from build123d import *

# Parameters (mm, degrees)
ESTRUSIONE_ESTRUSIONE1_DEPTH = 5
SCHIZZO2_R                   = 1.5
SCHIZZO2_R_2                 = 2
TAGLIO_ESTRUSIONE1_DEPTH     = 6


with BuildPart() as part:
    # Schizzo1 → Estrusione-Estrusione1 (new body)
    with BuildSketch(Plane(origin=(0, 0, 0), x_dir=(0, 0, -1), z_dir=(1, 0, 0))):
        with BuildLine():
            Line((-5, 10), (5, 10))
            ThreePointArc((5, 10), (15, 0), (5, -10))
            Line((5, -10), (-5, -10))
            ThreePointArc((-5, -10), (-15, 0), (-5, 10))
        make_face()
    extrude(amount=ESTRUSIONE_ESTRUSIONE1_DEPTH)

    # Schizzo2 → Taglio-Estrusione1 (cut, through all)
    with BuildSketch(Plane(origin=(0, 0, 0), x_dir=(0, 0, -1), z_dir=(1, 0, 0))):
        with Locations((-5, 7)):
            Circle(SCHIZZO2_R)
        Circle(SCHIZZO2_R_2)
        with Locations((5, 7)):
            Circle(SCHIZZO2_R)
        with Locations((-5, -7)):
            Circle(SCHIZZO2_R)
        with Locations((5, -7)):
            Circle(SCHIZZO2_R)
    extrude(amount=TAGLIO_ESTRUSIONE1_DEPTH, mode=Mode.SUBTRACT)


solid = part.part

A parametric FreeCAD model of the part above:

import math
import FreeCAD as App
import Part
import Sketcher
from FreeCAD import Vector
Q = App.Units.Quantity

doc = App.newDocument("Part")
params = doc.addObject("Spreadsheet::Sheet", "Params")
for row, (alias, value) in enumerate([
    ("sketch1_radius", "10 mm"),
    ("sketch1_height", "10 mm"),
    ("pad1_length", "5 mm"),
    ("sketch2_diameter", "3 mm"),
    ("sketch2_diameter2", "4 mm"),
], start=1):
    params.set(f"A{row}", alias)
    params.set(f"B{row}", "=" + value)
    params.setAlias(f"B{row}", alias)

body = doc.addObject("PartDesign::Body", "Body")

sketch1 = body.newObject("Sketcher::SketchObject", "Sketch")
sketch1.AttachmentSupport = (doc.getObject("YZ_Plane"), [""])
sketch1.MapMode = "FlatFace"
sketch1.addGeometry([
    Part.LineSegment(Vector(10, -5, 0), Vector(10, 5, 0)),
    Part.ArcOfCircle(Part.Circle(Vector(0, 5, 0), Vector(0, 0, 1), 10), math.radians(0), math.radians(180)),
    Part.LineSegment(Vector(-10, 5, 0), Vector(-10, -5, 0)),
    Part.ArcOfCircle(Part.Circle(Vector(0, -5, 0), Vector(0, 0, 1), 10), math.radians(180), math.radians(360)),
], False)
sketch1.addConstraint([
    Sketcher.Constraint("Tangent", 0, 2, 1, 1),
    Sketcher.Constraint("Tangent", 1, 2, 2, 1),
    Sketcher.Constraint("Tangent", 2, 2, 3, 1),
    Sketcher.Constraint("Tangent", 3, 2, 0, 1),
    Sketcher.Constraint("Vertical", 0),
    Sketcher.Constraint("Vertical", 2),
    Sketcher.Constraint("Symmetric", 1, 3, 3, 3, -1, 1),
    Sketcher.Constraint("Radius", 1, Q("10 mm")),
    Sketcher.Constraint("DistanceY", 0, 1, 0, 2, Q("10 mm")),
])
sketch1.setExpression("Constraints[7]", "Params.sketch1_radius")
sketch1.setExpression("Constraints[8]", "Params.sketch1_height")
pad1 = body.newObject("PartDesign::Pad", "Pad")
pad1.Profile = sketch1
pad1.setExpression("Length", "Params.pad1_length")

sketch2 = body.newObject("Sketcher::SketchObject", "Sketch001")
sketch2.AttachmentSupport = (doc.getObject("YZ_Plane"), [""])
sketch2.MapMode = "FlatFace"
sketch2.addGeometry([
    Part.Circle(Vector(7, 5, 0), Vector(0, 0, 1), 1.5),
    Part.Circle(Vector(0, 0, 0), Vector(0, 0, 1), 2),
    Part.Circle(Vector(7, -5, 0), Vector(0, 0, 1), 1.5),
    Part.Circle(Vector(-7, 5, 0), Vector(0, 0, 1), 1.5),
    Part.Circle(Vector(-7, -5, 0), Vector(0, 0, 1), 1.5),
], False)
sketch2.addConstraint([
    Sketcher.Constraint("Coincident", 1, 3, -1, 1),
    Sketcher.Constraint("Equal", 0, 2),
    Sketcher.Constraint("Equal", 2, 3),
    Sketcher.Constraint("Equal", 3, 4),
    Sketcher.Constraint("Symmetric", 2, 3, 3, 3, -1, 1),
    Sketcher.Constraint("Symmetric", 0, 3, 4, 3, -1, 1),
    Sketcher.Constraint("Symmetric", 0, 3, 3, 3, -2),
    Sketcher.Constraint("Diameter", 0, Q("3 mm")),
    Sketcher.Constraint("Diameter", 1, Q("4 mm")),
    Sketcher.Constraint("DistanceX", -1, 1, 0, 3, Q("7 mm")),
    Sketcher.Constraint("DistanceY", -1, 1, 0, 3, Q("5 mm")),
])
sketch2.setExpression("Constraints[7]", "Params.sketch2_diameter")
sketch2.setExpression("Constraints[8]", "Params.sketch2_diameter2")
pocket1 = body.newObject("PartDesign::Pocket", "Pocket")
pocket1.Profile = sketch2
pocket1.Type = "ThroughAll"
pocket1.Reversed = True

doc.recompute()
